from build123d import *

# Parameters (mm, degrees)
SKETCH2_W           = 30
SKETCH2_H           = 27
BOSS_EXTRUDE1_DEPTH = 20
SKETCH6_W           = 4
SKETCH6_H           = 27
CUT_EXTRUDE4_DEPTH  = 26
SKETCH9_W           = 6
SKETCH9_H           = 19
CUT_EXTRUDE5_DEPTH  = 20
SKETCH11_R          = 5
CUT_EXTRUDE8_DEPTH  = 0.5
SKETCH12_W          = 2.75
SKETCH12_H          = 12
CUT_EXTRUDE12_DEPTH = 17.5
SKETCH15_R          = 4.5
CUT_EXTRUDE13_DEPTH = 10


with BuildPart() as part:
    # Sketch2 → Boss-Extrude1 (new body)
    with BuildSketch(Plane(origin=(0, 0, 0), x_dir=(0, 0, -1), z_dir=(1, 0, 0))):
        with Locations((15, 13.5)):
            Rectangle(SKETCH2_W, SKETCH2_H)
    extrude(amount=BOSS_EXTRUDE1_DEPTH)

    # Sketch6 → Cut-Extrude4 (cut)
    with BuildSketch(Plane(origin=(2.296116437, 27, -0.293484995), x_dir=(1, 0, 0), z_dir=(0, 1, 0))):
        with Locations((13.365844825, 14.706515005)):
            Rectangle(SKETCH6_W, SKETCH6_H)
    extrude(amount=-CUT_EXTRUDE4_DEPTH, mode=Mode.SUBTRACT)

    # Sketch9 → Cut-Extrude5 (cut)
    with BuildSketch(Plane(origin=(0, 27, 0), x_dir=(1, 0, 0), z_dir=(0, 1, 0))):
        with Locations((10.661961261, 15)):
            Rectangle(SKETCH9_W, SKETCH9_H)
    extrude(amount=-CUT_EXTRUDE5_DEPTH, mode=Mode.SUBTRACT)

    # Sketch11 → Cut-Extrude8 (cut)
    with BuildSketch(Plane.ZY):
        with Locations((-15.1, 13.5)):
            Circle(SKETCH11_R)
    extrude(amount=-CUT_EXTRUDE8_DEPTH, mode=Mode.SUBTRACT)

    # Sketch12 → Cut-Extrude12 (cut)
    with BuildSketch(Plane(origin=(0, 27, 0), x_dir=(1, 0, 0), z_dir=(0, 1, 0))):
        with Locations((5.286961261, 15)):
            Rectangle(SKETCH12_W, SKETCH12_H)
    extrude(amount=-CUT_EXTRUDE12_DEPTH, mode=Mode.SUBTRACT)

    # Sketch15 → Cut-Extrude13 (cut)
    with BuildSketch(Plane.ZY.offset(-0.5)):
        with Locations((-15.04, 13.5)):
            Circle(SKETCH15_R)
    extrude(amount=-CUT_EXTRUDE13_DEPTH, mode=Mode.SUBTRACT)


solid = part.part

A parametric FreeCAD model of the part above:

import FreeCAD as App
import Part
import Sketcher


def add_polygon(sketch, points):
    """Adds a closed chain of lines whose ends are joined by coincident constraints."""
    first, n = sketch.GeometryCount, len(points)
    for a, b in zip(points, points[1:] + points[:1]):
        sketch.addGeometry(Part.LineSegment(App.Vector(*a, 0), App.Vector(*b, 0)), False)
    for i in range(n):
        sketch.addConstraint(Sketcher.Constraint("Coincident", first + i, 2, first + (i + 1) % n, 1))

doc = App.newDocument("Part")
body = doc.addObject("PartDesign::Body", "Body")

# Sketch on YZ plane
sketch1 = body.newObject("Sketcher::SketchObject", "Sketch")
sketch1.AttachmentSupport = (doc.getObject("YZ_Plane"), [""])
sketch1.MapMode = "FlatFace"
add_polygon(sketch1, [(27, 0), (0, 0), (0, -30), (27, -30)])  # lines 0-3
sketch1.addConstraint([
    Sketcher.Constraint("Horizontal", 0),
    Sketcher.Constraint("Vertical", 1),
    Sketcher.Constraint("Horizontal", 2),
    Sketcher.Constraint("Vertical", 3),
    Sketcher.Constraint("Coincident", 0, 2, -1, 1),
    Sketcher.Constraint("DistanceX", 0, 2, 0, 1, 27.0),
    Sketcher.Constraint("DistanceY", 1, 2, 1, 1, 30.0),
])
pad1 = body.newObject("PartDesign::Pad", "Pad")
pad1.Profile = sketch1
pad1.Length = 20

# Sketch on XZ plane
sketch2 = body.newObject("Sketcher::SketchObject", "Sketch001")
sketch2.AttachmentSupport = (doc.getObject("XZ_Plane"), [""])
sketch2.MapMode = "FlatFace"
sketch2.AttachmentOffset = App.Placement(App.Vector(0, 0, -27), App.Rotation())
add_polygon(sketch2, [(13.661961, -28.5), (13.661961, -1.5), (17.661961, -1.5), (17.661961, -28.5)])  # lines 0-3
sketch2.addConstraint([
    Sketcher.Constraint("Vertical", 0),
    Sketcher.Constraint("Horizontal", 1),
    Sketcher.Constraint("Vertical", 2),
    Sketcher.Constraint("Horizontal", 3),
    Sketcher.Constraint("DistanceX", 1, 1, 1, 2, 4.0),
    Sketcher.Constraint("DistanceY", 0, 1, 0, 2, 27.0),
    Sketcher.Constraint("DistanceY", 0, 2, -1, 1, 1.5),
    Sketcher.Constraint("DistanceX", -1, 1, 0, 2, 13.661961),
])
pocket1 = body.newObject("PartDesign::Pocket", "Pocket")
pocket1.Profile = sketch2
pocket1.Length = 26
pocket1.Reversed = True

# Sketch on XZ plane
sketch3 = body.newObject("Sketcher::SketchObject", "Sketch002")
sketch3.AttachmentSupport = (doc.getObject("XZ_Plane"), [""])
sketch3.MapMode = "FlatFace"
sketch3.AttachmentOffset = App.Placement(App.Vector(0, 0, -27), App.Rotation())
add_polygon(sketch3, [(7.661961, -24.5), (7.661961, -5.5), (13.661961, -5.5), (13.661961, -24.5)])  # lines 0-3
sketch3.addConstraint([
    Sketcher.Constraint("Vertical", 0),
    Sketcher.Constraint("Horizontal", 1),
    Sketcher.Constraint("Vertical", 2),
    Sketcher.Constraint("Horizontal", 3),
    Sketcher.Constraint("DistanceX", 1, 1, 1, 2, 6.0),
    Sketcher.Constraint("DistanceY", 0, 1, 0, 2, 19.0),
    Sketcher.Constraint("DistanceY", 0, 2, -1, 1, 5.5),
    Sketcher.Constraint("DistanceX", -1, 1, 0, 2, 7.661961),
])
pocket2 = body.newObject("PartDesign::Pocket", "Pocket001")
pocket2.Profile = sketch3
pocket2.Length = 20
pocket2.Reversed = True

# Sketch on YZ plane
sketch4 = body.newObject("Sketcher::SketchObject", "Sketch003")
sketch4.AttachmentSupport = (doc.getObject("YZ_Plane"), [""])
sketch4.MapMode = "FlatFace"
sketch4.addGeometry(Part.Circle(App.Vector(13.5, -15.1, 0), App.Vector(0, 0, 1), 5), False)
sketch4.addConstraint([
    Sketcher.Constraint("Diameter", 0, 10.0),
    Sketcher.Constraint("DistanceX", -1, 1, 0, 3, 13.5),
    Sketcher.Constraint("DistanceY", 0, 3, -1, 1, 15.1),
])
pocket3 = body.newObject("PartDesign::Pocket", "Pocket002")
pocket3.Profile = sketch4
pocket3.Length = 0.5
pocket3.Reversed = True

# Sketch on XZ plane
sketch5 = body.newObject("Sketcher::SketchObject", "Sketch004")
sketch5.AttachmentSupport = (doc.getObject("XZ_Plane"), [""])
sketch5.MapMode = "FlatFace"
sketch5.AttachmentOffset = App.Placement(App.Vector(0, 0, -27), App.Rotation())
add_polygon(sketch5, [(3.911961, -21), (3.911961, -9), (6.661961, -9), (6.661961, -21)])  # lines 0-3
sketch5.addConstraint([
    Sketcher.Constraint("Vertical", 0),
    Sketcher.Constraint("Horizontal", 1),
    Sketcher.Constraint("Vertical", 2),
    Sketcher.Constraint("Horizontal", 3),
    Sketcher.Constraint("DistanceY", 0, 1, 0, 2, 12.0),
    Sketcher.Constraint("DistanceY", 0, 2, -1, 1, 9.0),
    Sketcher.Constraint("DistanceX", 1, 1, 1, 2, 2.75),
    Sketcher.Constraint("DistanceX", -1, 1, 0, 2, 3.911961),
])
pocket4 = body.newObject("PartDesign::Pocket", "Pocket003")
pocket4.Profile = sketch5
pocket4.Length = 17.5
pocket4.Reversed = True

# Sketch on YZ plane
sketch6 = body.newObject("Sketcher::SketchObject", "Sketch005")
sketch6.AttachmentSupport = (doc.getObject("YZ_Plane"), [""])
sketch6.MapMode = "FlatFace"
sketch6.AttachmentOffset = App.Placement(App.Vector(0, 0, 0.5), App.Rotation())
sketch6.addGeometry(Part.Circle(App.Vector(13.5, -15.04, 0), App.Vector(0, 0, 1), 4.5), False)
sketch6.addConstraint([
    Sketcher.Constraint("Diameter", 0, 9.0),
    Sketcher.Constraint("DistanceX", -1, 1, 0, 3, 13.5),
    Sketcher.Constraint("DistanceY", 0, 3, -1, 1, 15.04),
])
pocket5 = body.newObject("PartDesign::Pocket", "Pocket004")
pocket5.Profile = sketch6
pocket5.Length = 10
pocket5.Reversed = True

doc.recompute()
